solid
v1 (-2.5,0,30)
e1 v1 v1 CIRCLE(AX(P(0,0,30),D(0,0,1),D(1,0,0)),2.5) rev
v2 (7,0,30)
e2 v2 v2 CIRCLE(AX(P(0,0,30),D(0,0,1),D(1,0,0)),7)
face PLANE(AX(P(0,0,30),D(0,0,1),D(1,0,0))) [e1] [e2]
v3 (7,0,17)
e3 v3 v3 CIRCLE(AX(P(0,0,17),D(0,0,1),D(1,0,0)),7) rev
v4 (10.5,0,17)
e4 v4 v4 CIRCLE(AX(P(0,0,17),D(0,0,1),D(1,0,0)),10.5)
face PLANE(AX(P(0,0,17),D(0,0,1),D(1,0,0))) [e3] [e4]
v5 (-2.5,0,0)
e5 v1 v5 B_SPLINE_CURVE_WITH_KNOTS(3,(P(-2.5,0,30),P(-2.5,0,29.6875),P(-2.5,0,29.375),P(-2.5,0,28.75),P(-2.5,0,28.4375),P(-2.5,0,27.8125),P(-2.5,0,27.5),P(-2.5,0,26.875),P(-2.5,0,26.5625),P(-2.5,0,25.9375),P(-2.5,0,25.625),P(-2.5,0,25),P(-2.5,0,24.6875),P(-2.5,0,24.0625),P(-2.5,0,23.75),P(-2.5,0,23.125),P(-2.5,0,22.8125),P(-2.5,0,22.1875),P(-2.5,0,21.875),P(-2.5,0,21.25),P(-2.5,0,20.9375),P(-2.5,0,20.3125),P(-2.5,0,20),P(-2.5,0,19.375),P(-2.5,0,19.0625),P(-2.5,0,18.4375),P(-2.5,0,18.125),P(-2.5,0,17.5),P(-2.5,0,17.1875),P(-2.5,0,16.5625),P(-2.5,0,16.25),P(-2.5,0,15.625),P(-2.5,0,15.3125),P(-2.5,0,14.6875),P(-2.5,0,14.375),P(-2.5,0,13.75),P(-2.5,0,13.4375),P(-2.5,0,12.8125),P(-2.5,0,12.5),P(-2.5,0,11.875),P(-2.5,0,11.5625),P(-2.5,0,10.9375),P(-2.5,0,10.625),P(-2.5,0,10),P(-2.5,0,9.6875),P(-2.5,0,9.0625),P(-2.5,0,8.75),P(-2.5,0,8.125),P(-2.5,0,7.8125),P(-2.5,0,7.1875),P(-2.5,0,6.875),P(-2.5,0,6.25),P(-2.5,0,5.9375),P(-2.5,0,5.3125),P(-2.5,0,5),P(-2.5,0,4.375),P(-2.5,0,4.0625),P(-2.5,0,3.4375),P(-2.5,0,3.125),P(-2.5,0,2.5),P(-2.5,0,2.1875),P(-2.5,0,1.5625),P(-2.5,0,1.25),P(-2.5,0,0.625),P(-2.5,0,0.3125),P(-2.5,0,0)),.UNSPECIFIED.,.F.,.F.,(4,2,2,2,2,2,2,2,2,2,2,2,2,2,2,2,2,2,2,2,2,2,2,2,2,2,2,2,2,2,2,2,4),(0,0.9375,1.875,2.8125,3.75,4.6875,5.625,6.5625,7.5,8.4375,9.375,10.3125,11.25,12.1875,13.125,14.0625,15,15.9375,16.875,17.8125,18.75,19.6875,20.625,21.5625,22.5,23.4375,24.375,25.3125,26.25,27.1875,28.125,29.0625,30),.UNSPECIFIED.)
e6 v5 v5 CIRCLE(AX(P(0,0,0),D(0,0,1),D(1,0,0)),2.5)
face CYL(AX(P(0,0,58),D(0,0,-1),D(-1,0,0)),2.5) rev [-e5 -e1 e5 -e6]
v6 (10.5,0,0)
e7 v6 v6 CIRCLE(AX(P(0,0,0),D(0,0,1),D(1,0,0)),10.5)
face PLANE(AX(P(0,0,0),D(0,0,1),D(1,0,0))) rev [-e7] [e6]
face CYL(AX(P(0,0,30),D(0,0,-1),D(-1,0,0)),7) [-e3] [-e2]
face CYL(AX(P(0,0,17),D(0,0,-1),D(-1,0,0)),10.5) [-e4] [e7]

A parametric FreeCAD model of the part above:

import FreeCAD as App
import Part
import Sketcher

doc = App.newDocument("Part")
body = doc.addObject("PartDesign::Body", "Body")

# Sketch on XY plane
sketch1 = body.newObject("Sketcher::SketchObject", "Sketch")
sketch1.AttachmentSupport = (doc.getObject("XY_Plane"), [""])
sketch1.MapMode = "FlatFace"
sketch1.addGeometry(Part.Circle(App.Vector(0, 0, 0), App.Vector(0, 0, 1), 10), False)
sketch1.addConstraint([
    Sketcher.Constraint("Coincident", 0, 3, -1, 1),
    Sketcher.Constraint("Diameter", 0, 21.0),
])
pad1 = body.newObject("PartDesign::Pad", "Pad")
pad1.Profile = sketch1
pad1.Length = 17

# Sketch on XY plane
sketch2 = body.newObject("Sketcher::SketchObject", "Sketch001")
sketch2.AttachmentSupport = (doc.getObject("XY_Plane"), [""])
sketch2.MapMode = "FlatFace"
sketch2.addGeometry(Part.Circle(App.Vector(0, 0, 0), App.Vector(0, 0, 1), 7), False)
sketch2.addConstraint([
    Sketcher.Constraint("Coincident", 0, 3, -1, 1),
    Sketcher.Constraint("Diameter", 0, 14.0),
])
pad2 = body.newObject("PartDesign::Pad", "Pad001")
pad2.Profile = sketch2
pad2.Length = 30

# Sketch on XY plane
sketch3 = body.newObject("Sketcher::SketchObject", "Sketch002")
sketch3.AttachmentSupport = (doc.getObject("XY_Plane"), [""])
sketch3.MapMode = "FlatFace"
sketch3.addGeometry(Part.Circle(App.Vector(0, 0, 0), App.Vector(0, 0, 1), 2.5), False)
sketch3.addConstraint([
    Sketcher.Constraint("Coincident", 0, 3, -1, 1),
    Sketcher.Constraint("Diameter", 0, 5.0),
])
pocket1 = body.newObject("PartDesign::Pocket", "Pocket")
pocket1.Profile = sketch3
pocket1.Length = 58
pocket1.Reversed = True

doc.recompute()
